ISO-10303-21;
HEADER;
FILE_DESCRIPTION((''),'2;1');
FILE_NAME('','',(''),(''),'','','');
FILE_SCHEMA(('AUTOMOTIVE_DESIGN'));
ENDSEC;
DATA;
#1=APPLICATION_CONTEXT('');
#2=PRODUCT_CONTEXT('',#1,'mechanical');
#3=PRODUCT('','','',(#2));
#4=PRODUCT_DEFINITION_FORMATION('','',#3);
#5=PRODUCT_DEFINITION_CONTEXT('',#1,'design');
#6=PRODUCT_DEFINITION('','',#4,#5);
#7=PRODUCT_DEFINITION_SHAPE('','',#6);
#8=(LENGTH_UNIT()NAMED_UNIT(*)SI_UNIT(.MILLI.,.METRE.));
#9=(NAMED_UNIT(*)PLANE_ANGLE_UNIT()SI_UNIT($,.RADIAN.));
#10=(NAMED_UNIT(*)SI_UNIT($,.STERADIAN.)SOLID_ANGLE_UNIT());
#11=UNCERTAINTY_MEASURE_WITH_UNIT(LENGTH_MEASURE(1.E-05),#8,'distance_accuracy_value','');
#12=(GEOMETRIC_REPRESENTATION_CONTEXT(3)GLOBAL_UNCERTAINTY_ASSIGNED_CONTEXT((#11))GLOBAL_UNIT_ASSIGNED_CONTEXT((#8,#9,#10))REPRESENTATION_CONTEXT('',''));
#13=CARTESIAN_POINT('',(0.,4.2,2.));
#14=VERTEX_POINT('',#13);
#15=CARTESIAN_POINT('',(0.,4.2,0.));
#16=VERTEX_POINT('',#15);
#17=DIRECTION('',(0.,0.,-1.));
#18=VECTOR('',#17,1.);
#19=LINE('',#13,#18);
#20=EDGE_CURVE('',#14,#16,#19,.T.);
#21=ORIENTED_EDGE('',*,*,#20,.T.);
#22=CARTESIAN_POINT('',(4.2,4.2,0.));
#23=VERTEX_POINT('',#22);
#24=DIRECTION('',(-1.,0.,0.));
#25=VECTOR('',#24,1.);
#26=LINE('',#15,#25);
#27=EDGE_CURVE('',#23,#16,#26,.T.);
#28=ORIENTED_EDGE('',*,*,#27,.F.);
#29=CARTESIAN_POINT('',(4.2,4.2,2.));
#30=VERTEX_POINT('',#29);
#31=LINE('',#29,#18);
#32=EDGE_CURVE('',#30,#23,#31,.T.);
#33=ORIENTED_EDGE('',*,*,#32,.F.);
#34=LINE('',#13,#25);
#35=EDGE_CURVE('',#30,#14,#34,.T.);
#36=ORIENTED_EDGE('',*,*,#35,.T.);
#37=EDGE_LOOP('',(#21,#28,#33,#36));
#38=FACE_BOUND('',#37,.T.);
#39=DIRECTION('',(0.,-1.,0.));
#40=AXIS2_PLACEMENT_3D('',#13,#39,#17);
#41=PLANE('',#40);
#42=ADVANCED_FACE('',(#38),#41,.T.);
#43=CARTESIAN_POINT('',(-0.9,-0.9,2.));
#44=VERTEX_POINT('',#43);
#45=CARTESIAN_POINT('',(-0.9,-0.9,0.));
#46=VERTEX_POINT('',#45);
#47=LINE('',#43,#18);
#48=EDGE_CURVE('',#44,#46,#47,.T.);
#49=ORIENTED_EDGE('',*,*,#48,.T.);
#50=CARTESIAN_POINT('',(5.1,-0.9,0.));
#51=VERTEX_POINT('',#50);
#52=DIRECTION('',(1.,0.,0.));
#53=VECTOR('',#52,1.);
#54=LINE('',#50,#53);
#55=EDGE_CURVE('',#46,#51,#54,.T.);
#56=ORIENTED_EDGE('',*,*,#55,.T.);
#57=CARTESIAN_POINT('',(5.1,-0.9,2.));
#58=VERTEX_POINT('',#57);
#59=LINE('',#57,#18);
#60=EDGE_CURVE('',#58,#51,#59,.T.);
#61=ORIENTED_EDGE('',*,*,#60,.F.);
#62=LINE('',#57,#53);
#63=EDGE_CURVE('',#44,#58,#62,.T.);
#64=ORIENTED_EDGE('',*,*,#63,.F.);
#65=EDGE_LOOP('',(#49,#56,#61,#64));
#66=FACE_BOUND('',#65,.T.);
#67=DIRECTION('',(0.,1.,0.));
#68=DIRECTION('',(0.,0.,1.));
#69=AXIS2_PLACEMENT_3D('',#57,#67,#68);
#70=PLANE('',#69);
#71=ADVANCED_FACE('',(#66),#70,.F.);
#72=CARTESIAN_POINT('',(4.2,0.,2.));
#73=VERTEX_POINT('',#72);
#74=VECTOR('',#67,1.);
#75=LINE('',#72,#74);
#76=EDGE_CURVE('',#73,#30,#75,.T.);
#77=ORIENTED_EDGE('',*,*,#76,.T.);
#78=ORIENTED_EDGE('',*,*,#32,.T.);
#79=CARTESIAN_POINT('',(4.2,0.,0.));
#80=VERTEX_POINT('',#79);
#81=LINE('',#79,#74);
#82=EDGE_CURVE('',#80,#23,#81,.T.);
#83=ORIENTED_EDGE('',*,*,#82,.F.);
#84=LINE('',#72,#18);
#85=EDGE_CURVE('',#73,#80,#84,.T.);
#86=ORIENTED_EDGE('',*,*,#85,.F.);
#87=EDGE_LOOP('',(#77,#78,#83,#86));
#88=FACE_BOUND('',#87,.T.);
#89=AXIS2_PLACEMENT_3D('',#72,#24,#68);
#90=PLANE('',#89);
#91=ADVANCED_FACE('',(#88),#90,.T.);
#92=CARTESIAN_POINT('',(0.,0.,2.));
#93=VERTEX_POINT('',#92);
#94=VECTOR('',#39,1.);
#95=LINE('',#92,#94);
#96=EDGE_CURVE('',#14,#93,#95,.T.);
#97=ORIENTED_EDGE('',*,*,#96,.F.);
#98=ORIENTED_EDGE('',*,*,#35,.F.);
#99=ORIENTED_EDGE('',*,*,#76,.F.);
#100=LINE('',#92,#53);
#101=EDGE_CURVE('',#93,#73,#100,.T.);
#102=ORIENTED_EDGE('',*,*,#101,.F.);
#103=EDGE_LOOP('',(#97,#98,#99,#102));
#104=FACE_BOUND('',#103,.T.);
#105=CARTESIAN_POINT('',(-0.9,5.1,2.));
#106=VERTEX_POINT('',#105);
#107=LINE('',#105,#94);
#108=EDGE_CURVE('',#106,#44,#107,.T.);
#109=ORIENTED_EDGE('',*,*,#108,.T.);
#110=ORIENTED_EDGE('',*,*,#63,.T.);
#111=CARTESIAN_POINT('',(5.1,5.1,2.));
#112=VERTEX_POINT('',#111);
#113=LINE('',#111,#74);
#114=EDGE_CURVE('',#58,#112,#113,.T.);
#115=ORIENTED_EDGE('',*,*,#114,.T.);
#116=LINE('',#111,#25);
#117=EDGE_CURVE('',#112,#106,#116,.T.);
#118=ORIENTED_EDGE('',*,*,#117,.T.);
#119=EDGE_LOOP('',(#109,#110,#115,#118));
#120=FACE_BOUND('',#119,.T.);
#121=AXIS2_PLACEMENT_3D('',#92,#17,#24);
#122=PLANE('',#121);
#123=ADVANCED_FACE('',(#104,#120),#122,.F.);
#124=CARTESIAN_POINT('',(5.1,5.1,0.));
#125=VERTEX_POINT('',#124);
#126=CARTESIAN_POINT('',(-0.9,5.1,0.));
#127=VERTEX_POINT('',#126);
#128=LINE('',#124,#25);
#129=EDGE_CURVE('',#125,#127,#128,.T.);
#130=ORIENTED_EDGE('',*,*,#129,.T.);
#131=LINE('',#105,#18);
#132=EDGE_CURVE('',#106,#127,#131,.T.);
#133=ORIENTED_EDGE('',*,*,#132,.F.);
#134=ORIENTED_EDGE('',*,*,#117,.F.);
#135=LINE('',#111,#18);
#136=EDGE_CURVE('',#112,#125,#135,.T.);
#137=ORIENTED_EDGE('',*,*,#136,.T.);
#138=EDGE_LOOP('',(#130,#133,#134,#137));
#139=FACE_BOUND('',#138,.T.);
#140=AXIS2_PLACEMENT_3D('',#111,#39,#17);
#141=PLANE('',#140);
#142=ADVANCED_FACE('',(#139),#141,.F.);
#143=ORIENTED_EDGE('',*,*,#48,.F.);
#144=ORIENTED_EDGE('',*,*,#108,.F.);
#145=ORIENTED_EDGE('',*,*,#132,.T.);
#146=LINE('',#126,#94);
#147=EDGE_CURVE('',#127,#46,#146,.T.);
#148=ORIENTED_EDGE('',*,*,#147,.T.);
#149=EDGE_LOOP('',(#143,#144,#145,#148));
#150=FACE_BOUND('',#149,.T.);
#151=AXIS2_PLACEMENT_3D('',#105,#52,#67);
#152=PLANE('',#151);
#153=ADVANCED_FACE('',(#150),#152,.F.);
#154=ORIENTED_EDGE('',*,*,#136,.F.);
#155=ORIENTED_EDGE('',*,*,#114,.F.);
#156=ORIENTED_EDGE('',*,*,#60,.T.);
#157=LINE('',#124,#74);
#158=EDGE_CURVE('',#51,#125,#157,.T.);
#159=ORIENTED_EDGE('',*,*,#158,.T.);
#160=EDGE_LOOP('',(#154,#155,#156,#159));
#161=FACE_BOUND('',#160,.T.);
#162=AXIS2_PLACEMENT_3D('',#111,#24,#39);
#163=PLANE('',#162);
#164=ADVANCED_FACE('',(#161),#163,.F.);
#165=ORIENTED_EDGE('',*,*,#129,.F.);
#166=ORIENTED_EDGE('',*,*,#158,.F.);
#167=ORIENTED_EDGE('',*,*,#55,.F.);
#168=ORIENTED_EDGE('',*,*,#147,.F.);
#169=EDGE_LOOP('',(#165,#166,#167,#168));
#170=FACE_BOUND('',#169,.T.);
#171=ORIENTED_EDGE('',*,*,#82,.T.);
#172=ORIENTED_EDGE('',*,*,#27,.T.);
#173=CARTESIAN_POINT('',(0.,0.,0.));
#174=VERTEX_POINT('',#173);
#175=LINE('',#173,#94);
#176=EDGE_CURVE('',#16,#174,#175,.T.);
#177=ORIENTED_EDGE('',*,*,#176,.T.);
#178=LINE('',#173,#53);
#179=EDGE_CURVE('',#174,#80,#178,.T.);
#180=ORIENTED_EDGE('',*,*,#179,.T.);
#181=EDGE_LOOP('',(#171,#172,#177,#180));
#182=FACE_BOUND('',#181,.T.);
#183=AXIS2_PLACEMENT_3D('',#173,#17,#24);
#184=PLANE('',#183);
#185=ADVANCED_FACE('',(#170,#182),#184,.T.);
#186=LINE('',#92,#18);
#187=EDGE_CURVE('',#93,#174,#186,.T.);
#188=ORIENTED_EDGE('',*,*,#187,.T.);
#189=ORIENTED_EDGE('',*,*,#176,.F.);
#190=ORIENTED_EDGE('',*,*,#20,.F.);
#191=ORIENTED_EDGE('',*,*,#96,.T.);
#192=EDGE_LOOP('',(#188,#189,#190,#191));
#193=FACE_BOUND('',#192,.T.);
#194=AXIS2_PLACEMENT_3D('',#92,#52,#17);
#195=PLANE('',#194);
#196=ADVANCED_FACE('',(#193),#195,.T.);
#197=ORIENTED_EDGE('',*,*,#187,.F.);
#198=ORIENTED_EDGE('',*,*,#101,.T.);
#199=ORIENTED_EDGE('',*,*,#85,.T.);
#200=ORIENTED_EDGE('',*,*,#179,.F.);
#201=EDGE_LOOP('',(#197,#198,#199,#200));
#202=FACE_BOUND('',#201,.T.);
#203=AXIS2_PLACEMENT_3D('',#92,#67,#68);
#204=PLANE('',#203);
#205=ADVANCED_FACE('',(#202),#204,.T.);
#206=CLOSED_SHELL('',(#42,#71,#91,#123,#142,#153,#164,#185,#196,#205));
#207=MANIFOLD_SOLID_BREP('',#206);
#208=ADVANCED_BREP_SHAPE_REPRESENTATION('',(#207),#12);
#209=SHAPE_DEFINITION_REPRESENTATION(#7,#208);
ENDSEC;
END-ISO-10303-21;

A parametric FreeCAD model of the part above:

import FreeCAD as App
import Part
import Sketcher

V = App.Vector
Q = App.Units.Quantity


def add_polygon(sketch, points):
    """Adds a closed chain of lines whose ends are joined by coincident constraints."""
    first, n = sketch.GeometryCount, len(points)
    for a, b in zip(points, points[1:] + points[:1]):
        sketch.addGeometry(Part.LineSegment(App.Vector(*a, 0), App.Vector(*b, 0)), False)
    for i in range(n):
        sketch.addConstraint(Sketcher.Constraint("Coincident", first + i, 2, first + (i + 1) % n, 1))

doc = App.newDocument("Part")
body = doc.addObject("PartDesign::Body", "Body")

# Sketch on XY plane
sketch1 = doc.addObject("Sketcher::SketchObject", "Sketch")
body.addObject(sketch1)
sketch1.AttachmentSupport = (doc.XY_Plane, [""])
sketch1.MapMode = "FlatFace"
add_polygon(sketch1, [(-0.9, 5.1), (-0.9, -0.9), (5.1, -0.9), (5.1, 5.1)])  # lines 0-3
add_polygon(sketch1, [(4.2, 0), (0, 0), (0, 4.2), (4.2, 4.2)])  # lines 4-7
sketch1.addConstraint(Sketcher.Constraint("Vertical", 0))
sketch1.addConstraint(Sketcher.Constraint("Horizontal", 1))
sketch1.addConstraint(Sketcher.Constraint("Vertical", 2))
sketch1.addConstraint(Sketcher.Constraint("Horizontal", 3))
sketch1.addConstraint(Sketcher.Constraint("Horizontal", 4))
sketch1.addConstraint(Sketcher.Constraint("Vertical", 5))
sketch1.addConstraint(Sketcher.Constraint("Horizontal", 6))
sketch1.addConstraint(Sketcher.Constraint("Vertical", 7))
sketch1.addConstraint(Sketcher.Constraint("Coincident", 4, 2, -1, 1))
sketch1.addConstraint(Sketcher.Constraint("Equal", 3, 0))
sketch1.addConstraint(Sketcher.Constraint("Equal", 6, 5))
sketch1.addConstraint(Sketcher.Constraint("DistanceX", 1, 1, 1, 2, Q("6 mm")))
sketch1.addConstraint(Sketcher.Constraint("DistanceX", 4, 2, 4, 1, Q("4.2 mm")))
sketch1.addConstraint(Sketcher.Constraint("DistanceX", 0, 2, -1, 1, Q("0.9 mm")))
sketch1.addConstraint(Sketcher.Constraint("DistanceY", 0, 2, -1, 1, Q("0.9 mm")))
pad1 = doc.addObject("PartDesign::Pad", "Pad")
body.addObject(pad1)
pad1.Profile = sketch1
pad1.Length = 2

doc.recompute()
